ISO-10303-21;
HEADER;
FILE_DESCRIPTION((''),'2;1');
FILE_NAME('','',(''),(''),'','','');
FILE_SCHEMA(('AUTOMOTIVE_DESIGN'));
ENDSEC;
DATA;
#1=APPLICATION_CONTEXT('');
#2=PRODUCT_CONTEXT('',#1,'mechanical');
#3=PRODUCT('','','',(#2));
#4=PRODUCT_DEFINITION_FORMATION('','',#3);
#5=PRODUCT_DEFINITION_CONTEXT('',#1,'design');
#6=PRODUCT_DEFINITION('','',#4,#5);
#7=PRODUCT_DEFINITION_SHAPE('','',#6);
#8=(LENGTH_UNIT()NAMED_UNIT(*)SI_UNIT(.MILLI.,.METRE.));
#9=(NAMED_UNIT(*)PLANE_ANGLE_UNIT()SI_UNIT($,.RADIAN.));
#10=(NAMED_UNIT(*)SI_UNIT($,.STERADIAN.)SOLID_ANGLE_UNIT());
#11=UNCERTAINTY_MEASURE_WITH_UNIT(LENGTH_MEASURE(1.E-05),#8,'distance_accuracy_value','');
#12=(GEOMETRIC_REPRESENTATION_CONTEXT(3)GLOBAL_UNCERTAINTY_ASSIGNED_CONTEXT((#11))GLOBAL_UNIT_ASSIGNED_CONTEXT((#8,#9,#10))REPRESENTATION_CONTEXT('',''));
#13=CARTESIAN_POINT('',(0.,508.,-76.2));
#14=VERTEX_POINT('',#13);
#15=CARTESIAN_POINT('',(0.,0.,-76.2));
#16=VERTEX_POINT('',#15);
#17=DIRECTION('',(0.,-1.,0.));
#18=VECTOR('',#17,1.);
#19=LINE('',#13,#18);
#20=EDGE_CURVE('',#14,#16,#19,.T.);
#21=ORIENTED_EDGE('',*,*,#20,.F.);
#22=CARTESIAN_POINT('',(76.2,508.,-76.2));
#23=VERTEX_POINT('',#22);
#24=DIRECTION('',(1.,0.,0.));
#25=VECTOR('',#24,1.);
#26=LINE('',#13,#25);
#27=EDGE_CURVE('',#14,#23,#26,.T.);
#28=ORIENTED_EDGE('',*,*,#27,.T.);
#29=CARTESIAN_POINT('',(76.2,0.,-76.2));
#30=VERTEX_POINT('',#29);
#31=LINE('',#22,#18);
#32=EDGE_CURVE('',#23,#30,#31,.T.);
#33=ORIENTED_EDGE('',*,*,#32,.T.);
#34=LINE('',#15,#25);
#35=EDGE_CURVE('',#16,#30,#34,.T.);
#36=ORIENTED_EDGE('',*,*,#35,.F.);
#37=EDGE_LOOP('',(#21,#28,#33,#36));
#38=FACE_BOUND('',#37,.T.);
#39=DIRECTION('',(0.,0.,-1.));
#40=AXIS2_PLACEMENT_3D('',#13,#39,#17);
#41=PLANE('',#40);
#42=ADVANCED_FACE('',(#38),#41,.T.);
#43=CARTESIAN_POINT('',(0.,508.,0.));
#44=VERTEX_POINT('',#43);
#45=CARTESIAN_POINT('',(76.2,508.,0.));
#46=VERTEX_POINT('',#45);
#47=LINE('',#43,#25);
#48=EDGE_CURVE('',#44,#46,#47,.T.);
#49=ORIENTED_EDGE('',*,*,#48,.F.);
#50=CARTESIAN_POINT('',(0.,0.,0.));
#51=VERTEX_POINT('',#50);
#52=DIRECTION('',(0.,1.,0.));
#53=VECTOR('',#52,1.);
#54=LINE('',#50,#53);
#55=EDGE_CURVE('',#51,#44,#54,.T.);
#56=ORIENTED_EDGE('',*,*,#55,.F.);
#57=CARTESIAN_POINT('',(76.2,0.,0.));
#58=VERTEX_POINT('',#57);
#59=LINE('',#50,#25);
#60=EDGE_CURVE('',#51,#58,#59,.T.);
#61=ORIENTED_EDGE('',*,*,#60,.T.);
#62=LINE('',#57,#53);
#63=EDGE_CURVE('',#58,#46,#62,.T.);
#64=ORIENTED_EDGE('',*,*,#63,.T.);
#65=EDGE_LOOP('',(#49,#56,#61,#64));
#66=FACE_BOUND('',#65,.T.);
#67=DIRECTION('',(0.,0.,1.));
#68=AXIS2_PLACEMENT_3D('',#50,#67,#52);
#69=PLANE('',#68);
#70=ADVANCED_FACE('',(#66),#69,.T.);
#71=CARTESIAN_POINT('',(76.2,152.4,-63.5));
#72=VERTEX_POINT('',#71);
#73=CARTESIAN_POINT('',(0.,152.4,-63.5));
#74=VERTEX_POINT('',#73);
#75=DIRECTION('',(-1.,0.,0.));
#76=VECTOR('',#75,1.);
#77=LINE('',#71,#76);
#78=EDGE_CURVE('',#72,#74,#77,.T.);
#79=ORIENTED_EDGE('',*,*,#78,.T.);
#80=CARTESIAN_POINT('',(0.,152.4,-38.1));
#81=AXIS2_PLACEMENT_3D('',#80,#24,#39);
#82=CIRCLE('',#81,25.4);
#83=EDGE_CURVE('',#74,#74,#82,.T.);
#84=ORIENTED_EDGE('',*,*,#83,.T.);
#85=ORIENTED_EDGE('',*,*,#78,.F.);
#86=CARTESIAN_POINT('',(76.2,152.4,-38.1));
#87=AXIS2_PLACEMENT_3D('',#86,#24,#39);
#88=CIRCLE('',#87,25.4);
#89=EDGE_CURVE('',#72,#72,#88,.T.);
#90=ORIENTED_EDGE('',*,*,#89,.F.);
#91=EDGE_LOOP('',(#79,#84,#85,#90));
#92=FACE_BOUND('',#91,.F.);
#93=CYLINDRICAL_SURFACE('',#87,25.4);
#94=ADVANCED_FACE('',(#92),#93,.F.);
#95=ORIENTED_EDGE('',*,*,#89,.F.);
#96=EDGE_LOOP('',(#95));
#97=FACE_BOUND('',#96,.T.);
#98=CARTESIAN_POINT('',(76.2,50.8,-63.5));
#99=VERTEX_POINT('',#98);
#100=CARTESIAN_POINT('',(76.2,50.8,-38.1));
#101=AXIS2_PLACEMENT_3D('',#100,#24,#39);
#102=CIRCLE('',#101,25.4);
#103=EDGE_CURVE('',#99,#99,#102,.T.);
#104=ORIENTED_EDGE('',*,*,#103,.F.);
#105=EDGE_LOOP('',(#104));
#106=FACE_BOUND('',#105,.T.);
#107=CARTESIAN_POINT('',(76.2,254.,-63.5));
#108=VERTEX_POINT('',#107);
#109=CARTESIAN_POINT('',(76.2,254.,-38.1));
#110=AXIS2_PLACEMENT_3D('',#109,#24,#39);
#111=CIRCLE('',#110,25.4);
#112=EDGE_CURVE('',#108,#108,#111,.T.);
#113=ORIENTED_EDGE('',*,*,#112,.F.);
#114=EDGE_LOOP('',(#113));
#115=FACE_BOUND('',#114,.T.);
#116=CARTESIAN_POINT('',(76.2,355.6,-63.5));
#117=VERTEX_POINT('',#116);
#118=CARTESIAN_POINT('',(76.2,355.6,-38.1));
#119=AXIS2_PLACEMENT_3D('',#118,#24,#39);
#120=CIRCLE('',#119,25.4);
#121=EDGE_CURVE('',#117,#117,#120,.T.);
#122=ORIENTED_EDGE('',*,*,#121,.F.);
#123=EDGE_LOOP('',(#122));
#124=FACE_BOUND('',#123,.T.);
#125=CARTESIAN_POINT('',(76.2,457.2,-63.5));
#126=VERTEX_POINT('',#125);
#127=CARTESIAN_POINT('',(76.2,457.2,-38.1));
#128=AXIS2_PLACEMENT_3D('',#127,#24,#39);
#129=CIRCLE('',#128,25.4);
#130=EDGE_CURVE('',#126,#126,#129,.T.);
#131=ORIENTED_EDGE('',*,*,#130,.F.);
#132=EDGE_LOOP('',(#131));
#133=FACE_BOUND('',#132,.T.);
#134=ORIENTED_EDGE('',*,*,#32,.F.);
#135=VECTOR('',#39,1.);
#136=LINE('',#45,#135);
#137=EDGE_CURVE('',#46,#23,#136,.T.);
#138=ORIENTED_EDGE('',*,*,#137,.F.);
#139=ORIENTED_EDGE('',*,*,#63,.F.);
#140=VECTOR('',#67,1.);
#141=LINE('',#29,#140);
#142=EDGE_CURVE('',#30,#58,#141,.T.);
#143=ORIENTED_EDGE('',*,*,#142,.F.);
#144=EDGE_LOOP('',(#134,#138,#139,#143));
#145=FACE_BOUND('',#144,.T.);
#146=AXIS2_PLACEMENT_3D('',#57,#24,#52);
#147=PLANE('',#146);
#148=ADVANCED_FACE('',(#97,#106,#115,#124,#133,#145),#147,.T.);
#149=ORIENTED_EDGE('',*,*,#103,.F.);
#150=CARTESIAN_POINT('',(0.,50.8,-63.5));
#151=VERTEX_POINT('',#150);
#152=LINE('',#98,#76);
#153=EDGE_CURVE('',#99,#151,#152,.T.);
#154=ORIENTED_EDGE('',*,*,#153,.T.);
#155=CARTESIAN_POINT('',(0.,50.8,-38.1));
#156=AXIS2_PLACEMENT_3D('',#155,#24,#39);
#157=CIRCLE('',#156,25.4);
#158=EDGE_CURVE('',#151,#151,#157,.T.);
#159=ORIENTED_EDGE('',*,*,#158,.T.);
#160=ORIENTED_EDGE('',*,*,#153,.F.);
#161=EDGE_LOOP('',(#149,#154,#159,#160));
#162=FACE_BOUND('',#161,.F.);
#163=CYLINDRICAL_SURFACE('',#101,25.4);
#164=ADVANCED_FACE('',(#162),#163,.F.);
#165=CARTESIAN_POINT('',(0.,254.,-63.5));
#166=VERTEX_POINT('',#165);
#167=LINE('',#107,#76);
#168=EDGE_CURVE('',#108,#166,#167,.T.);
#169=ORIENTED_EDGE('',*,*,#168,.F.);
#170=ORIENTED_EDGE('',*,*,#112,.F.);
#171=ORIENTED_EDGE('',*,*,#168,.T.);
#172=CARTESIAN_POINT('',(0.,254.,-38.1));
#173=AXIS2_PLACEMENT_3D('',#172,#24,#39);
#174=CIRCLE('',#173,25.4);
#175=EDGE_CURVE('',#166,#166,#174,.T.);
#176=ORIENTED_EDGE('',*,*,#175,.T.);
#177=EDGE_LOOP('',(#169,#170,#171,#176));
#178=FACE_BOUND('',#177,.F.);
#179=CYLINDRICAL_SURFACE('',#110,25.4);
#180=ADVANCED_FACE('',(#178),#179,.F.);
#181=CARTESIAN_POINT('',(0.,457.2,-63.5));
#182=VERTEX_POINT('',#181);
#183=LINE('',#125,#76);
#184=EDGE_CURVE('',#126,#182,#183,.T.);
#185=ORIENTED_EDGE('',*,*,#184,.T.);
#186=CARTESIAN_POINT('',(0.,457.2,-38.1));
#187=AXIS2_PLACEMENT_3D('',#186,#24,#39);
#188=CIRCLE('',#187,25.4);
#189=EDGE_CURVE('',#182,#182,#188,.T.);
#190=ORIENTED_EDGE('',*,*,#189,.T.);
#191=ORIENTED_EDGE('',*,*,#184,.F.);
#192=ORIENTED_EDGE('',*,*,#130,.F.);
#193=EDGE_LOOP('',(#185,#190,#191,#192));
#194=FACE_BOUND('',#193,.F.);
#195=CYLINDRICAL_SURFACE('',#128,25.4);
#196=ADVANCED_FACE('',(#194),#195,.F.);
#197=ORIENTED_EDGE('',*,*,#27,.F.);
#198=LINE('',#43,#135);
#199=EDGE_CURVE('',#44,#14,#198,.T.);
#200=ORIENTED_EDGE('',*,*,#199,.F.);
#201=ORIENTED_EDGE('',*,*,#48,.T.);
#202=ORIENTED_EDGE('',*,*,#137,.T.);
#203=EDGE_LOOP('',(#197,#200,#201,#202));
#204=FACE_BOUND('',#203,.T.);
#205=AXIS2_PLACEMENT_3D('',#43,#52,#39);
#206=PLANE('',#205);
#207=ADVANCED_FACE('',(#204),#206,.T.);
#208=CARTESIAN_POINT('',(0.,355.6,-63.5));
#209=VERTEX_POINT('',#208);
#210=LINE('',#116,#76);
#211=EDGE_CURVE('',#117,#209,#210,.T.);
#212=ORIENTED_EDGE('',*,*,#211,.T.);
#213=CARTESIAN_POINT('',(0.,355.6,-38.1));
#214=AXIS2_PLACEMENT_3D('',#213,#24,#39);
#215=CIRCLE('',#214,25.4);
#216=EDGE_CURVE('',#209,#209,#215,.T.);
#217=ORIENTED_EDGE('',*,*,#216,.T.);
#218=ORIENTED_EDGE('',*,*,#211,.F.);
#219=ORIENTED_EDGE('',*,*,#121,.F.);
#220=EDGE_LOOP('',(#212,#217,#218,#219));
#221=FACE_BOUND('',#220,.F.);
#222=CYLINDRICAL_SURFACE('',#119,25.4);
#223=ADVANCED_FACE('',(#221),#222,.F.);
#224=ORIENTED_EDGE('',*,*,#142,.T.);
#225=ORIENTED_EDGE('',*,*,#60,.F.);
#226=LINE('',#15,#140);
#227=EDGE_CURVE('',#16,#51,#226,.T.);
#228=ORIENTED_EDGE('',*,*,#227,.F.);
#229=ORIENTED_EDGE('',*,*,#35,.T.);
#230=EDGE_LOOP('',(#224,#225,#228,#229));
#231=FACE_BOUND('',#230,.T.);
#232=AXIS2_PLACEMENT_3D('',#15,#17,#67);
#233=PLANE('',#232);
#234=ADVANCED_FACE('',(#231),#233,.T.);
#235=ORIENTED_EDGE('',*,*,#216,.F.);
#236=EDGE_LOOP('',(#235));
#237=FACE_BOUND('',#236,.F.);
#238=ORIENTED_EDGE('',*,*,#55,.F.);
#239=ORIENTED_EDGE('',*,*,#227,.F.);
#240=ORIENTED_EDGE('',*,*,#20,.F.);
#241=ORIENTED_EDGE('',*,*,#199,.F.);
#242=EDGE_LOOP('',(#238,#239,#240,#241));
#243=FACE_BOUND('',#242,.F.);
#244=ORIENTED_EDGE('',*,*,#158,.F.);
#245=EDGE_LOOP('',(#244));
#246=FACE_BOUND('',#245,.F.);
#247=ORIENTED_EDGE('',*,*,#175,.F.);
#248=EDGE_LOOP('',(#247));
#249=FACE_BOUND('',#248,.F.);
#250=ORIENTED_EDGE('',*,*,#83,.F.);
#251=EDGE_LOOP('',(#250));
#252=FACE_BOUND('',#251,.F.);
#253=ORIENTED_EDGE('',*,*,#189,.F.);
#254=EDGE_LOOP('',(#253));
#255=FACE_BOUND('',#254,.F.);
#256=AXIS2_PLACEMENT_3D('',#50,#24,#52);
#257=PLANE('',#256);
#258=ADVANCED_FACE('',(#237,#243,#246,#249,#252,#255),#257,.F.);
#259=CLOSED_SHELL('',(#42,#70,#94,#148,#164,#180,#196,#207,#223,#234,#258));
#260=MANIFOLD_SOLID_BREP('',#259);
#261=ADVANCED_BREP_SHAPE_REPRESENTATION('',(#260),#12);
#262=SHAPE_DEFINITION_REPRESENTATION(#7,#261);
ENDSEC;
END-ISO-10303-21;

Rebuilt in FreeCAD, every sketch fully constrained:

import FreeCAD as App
import Part
import Sketcher
Q = App.Units.Quantity


def add_polygon(sketch, points):
    """Adds a closed chain of lines whose ends are joined by coincident constraints."""
    first, n = sketch.GeometryCount, len(points)
    for a, b in zip(points, points[1:] + points[:1]):
        sketch.addGeometry(Part.LineSegment(App.Vector(*a, 0), App.Vector(*b, 0)), False)
    for i in range(n):
        sketch.addConstraint(Sketcher.Constraint("Coincident", first + i, 2, first + (i + 1) % n, 1))

doc = App.newDocument("Part")
body = doc.addObject("PartDesign::Body", "Body")

sketch1 = body.newObject("Sketcher::SketchObject", "Sketch")
sketch1.AttachmentSupport = (doc.getObject("YZ_Plane"), [""])
sketch1.MapMode = "FlatFace"
add_polygon(sketch1, [(508, 0), (0, 0), (0, -76), (508, -76)])
sketch1.addConstraint(Sketcher.Constraint("Horizontal", 0))
sketch1.addConstraint(Sketcher.Constraint("Vertical", 1))
sketch1.addConstraint(Sketcher.Constraint("Horizontal", 2))
sketch1.addConstraint(Sketcher.Constraint("Vertical", 3))
sketch1.addConstraint(Sketcher.Constraint("Coincident", 0, 2, -1, 1))
sketch1.addConstraint(Sketcher.Constraint("DistanceX", 0, 2, 0, 1, Q("20 in")))
sketch1.addConstraint(Sketcher.Constraint("DistanceY", 1, 2, 1, 1, Q("3 in")))
pad1 = body.newObject("PartDesign::Pad", "Pad")
pad1.Profile = sketch1
pad1.Length = Q("3 in")

sketch2 = body.newObject("Sketcher::SketchObject", "Sketch001")
sketch2.AttachmentSupport = (doc.getObject("YZ_Plane"), [""])
sketch2.MapMode = "FlatFace"
sketch2.AttachmentOffset = App.Placement(App.Vector(0, 0, 3 * 25.4), App.Rotation())
sketch2.addGeometry(Part.Circle(App.Vector(51, -38, 0), App.Vector(0, 0, 1), 25), False)
sketch2.addGeometry(Part.Circle(App.Vector(152, -38, 0), App.Vector(0, 0, 1), 25), False)
sketch2.addGeometry(Part.Circle(App.Vector(254, -38, 0), App.Vector(0, 0, 1), 25), False)
sketch2.addGeometry(Part.Circle(App.Vector(356, -38, 0), App.Vector(0, 0, 1), 25), False)
sketch2.addGeometry(Part.Circle(App.Vector(457, -38, 0), App.Vector(0, 0, 1), 25), False)
sketch2.addConstraint(Sketcher.Constraint("Equal", 0, 1))
sketch2.addConstraint(Sketcher.Constraint("Equal", 1, 2))
sketch2.addConstraint(Sketcher.Constraint("Equal", 2, 3))
sketch2.addConstraint(Sketcher.Constraint("Equal", 3, 4))
sketch2.addConstraint(Sketcher.Constraint("Horizontal", 0, 3, 1, 3))
sketch2.addConstraint(Sketcher.Constraint("Horizontal", 1, 3, 2, 3))
sketch2.addConstraint(Sketcher.Constraint("Horizontal", 2, 3, 3, 3))
sketch2.addConstraint(Sketcher.Constraint("Horizontal", 3, 3, 4, 3))
sketch2.addConstraint(Sketcher.Constraint("Diameter", 0, Q("2 in")))
sketch2.addConstraint(Sketcher.Constraint("DistanceX", -1, 1, 0, 3, Q("2 in")))
sketch2.addConstraint(Sketcher.Constraint("DistanceX", -1, 1, 1, 3, Q("6 in")))
sketch2.addConstraint(Sketcher.Constraint("DistanceX", -1, 1, 2, 3, Q("10 in")))
sketch2.addConstraint(Sketcher.Constraint("DistanceX", -1, 1, 3, 3, Q("14 in")))
sketch2.addConstraint(Sketcher.Constraint("DistanceX", -1, 1, 4, 3, Q("18 in")))
sketch2.addConstraint(Sketcher.Constraint("DistanceY", 0, 3, -1, 1, Q("1.5 in")))
pocket1 = body.newObject("PartDesign::Pocket", "Pocket")
pocket1.Profile = sketch2
pocket1.Length = Q("3 in")

doc.recompute()
